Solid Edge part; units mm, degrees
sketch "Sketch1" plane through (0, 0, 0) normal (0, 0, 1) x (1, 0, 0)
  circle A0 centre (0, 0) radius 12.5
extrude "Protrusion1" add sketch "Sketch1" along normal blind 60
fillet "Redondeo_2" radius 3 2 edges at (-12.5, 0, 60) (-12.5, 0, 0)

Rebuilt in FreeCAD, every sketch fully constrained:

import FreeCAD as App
import Part
import Sketcher
from FreeCAD import Vector


def edges_at(feature, points):
    """Names of the edges that pass closest to the given points."""
    edges = feature.Shape.Edges
    near = lambda p: min(range(len(edges)), key=lambda i: edges[i].distToShape(Part.Vertex(*p))[0])
    return sorted({f"Edge{near(p) + 1}" for p in points})

doc = App.newDocument("Part")
body = doc.addObject("PartDesign::Body", "Body")

# Sketch on XY plane
sketch1 = doc.addObject("Sketcher::SketchObject", "Sketch")
body.addObject(sketch1)
sketch1.AttachmentSupport = (doc.XY_Plane, [""])
sketch1.MapMode = "FlatFace"
sketch1.addGeometry(Part.Circle(Vector(0, 0, 0), Vector(0, 0, 1), 12), False)
sketch1.addConstraint([
    Sketcher.Constraint("Coincident", 0, 3, -1, 1),
    Sketcher.Constraint("Diameter", 0, 25.0),
])
pad1 = doc.addObject("PartDesign::Pad", "Pad")
body.addObject(pad1)
pad1.Profile = sketch1
pad1.Length = 60
doc.recompute()

fillet = doc.addObject("PartDesign::Fillet", "Fillet")
body.addObject(fillet)
fillet.Base = (pad1, edges_at(pad1, [(-12.5, 0, 60), (-12.5, 0, 0)]))
fillet.Radius = 3

doc.recompute()
